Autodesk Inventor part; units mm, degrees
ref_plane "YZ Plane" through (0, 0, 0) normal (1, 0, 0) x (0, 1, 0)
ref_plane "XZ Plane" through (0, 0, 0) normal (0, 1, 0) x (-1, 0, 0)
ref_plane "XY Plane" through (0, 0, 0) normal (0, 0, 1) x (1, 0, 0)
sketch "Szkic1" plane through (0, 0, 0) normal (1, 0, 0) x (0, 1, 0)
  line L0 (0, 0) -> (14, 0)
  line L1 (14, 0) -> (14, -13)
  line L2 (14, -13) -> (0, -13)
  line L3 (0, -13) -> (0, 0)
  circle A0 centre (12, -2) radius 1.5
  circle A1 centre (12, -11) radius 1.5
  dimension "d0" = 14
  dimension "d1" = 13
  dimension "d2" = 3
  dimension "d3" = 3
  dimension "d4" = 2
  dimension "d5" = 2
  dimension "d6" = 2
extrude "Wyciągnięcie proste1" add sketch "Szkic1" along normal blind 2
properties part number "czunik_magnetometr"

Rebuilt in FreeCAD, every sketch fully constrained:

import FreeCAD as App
import Part
import Sketcher
Q = App.Units.Quantity

doc = App.newDocument("Part")
body = doc.addObject("PartDesign::Body", "Body")

# Sketch on YZ plane
sketch1 = body.newObject("Sketcher::SketchObject", "Sketch")
sketch1.AttachmentSupport = (doc.getObject("YZ_Plane"), [""])
sketch1.MapMode = "FlatFace"
sketch1.addGeometry(Part.LineSegment(App.Vector(14, 0, 0), App.Vector(0, 0, 0)), False)
sketch1.addGeometry(Part.LineSegment(App.Vector(0, 0, 0), App.Vector(0, -13, 0)), False)
sketch1.addGeometry(Part.LineSegment(App.Vector(0, -13, 0), App.Vector(14, -13, 0)), False)
sketch1.addGeometry(Part.LineSegment(App.Vector(14, -13, 0), App.Vector(14, 0, 0)), False)
sketch1.addGeometry(Part.Circle(App.Vector(12, -11, 0), App.Vector(0, 0, 1), 1.5), False)
sketch1.addGeometry(Part.Circle(App.Vector(12, -2, 0), App.Vector(0, 0, 1), 1.5), False)
sketch1.addConstraint(Sketcher.Constraint("Coincident", 0, 2, 1, 1))
sketch1.addConstraint(Sketcher.Constraint("Coincident", 1, 2, 2, 1))
sketch1.addConstraint(Sketcher.Constraint("Coincident", 2, 2, 3, 1))
sketch1.addConstraint(Sketcher.Constraint("Coincident", 3, 2, 0, 1))
sketch1.addConstraint(Sketcher.Constraint("Horizontal", 0))
sketch1.addConstraint(Sketcher.Constraint("Vertical", 1))
sketch1.addConstraint(Sketcher.Constraint("Horizontal", 2))
sketch1.addConstraint(Sketcher.Constraint("Vertical", 3))
sketch1.addConstraint(Sketcher.Constraint("Coincident", 0, 2, -1, 1))
sketch1.addConstraint(Sketcher.Constraint("Equal", 4, 5))
sketch1.addConstraint(Sketcher.Constraint("Vertical", 4, 3, 5, 3))
sketch1.addConstraint(Sketcher.Constraint("Diameter", 4, Q("3 mm")))
sketch1.addConstraint(Sketcher.Constraint("DistanceX", 0, 2, 0, 1, Q("14 mm")))
sketch1.addConstraint(Sketcher.Constraint("DistanceY", 1, 2, 1, 1, Q("13 mm")))
sketch1.addConstraint(Sketcher.Constraint("DistanceY", 5, 3, -1, 1, Q("2 mm")))
sketch1.addConstraint(Sketcher.Constraint("DistanceY", 1, 2, 4, 3, Q("2 mm")))
sketch1.addConstraint(Sketcher.Constraint("DistanceX", 4, 3, 2, 2, Q("2 mm")))
pad1 = body.newObject("PartDesign::Pad", "Pad")
pad1.Profile = sketch1
pad1.Length = 2

doc.recompute()
